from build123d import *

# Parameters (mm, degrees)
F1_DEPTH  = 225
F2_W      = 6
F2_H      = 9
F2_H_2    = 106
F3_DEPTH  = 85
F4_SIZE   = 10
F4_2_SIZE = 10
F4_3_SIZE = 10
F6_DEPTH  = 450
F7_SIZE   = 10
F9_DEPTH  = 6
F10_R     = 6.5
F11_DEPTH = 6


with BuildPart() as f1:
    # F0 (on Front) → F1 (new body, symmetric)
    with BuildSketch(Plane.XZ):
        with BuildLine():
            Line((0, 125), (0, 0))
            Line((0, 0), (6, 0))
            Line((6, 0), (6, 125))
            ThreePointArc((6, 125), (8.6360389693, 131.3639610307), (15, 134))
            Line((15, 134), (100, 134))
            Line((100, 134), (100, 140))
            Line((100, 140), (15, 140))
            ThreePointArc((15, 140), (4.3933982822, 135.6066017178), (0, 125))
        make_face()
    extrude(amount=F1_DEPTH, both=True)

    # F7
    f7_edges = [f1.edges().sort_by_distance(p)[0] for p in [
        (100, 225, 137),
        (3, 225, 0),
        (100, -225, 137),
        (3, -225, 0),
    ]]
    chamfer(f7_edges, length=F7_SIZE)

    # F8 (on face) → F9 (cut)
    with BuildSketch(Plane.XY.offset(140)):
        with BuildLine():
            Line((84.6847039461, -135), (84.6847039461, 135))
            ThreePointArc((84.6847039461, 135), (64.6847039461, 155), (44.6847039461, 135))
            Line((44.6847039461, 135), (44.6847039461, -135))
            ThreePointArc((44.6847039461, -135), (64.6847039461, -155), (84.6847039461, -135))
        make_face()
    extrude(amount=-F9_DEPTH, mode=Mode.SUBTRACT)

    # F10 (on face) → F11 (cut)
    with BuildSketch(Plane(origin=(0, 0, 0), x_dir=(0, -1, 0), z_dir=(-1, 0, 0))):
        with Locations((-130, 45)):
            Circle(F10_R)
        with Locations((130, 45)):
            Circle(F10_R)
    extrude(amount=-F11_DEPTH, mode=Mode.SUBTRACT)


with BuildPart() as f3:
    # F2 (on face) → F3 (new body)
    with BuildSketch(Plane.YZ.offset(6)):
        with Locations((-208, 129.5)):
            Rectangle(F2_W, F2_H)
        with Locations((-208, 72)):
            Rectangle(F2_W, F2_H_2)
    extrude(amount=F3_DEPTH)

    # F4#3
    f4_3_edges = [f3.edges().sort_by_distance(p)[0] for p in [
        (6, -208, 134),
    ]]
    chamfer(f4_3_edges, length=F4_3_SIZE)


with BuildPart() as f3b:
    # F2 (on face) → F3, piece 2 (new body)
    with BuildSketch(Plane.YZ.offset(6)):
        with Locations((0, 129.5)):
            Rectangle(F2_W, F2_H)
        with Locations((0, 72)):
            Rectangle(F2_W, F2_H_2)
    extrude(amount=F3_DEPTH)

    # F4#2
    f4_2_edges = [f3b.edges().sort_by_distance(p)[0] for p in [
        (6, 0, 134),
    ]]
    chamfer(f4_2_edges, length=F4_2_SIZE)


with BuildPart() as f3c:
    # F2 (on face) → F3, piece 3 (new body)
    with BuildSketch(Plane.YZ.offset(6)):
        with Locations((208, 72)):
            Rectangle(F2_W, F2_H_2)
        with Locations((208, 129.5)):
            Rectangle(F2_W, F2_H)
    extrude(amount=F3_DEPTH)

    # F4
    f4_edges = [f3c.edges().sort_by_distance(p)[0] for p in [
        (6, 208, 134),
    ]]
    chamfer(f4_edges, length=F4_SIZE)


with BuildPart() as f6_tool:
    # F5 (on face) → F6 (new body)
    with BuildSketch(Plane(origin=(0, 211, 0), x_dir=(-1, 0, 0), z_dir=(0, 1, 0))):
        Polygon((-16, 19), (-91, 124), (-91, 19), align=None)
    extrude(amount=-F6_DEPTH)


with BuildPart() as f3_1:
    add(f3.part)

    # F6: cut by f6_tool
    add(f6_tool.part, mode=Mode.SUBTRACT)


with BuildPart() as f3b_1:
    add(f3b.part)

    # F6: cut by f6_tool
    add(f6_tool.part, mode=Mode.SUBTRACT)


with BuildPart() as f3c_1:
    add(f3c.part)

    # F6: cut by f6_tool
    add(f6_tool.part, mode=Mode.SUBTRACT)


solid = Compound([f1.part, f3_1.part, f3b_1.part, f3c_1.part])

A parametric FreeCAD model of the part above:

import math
import FreeCAD as App
import Part
import Sketcher
Q = App.Units.Quantity


def edges_at(feature, points):
    """Names of the edges that pass closest to the given points."""
    edges = feature.Shape.Edges
    near = lambda p: min(range(len(edges)), key=lambda i: edges[i].distToShape(Part.Vertex(*p))[0])
    return sorted({f"Edge{near(p) + 1}" for p in points})


def add_polygon(sketch, points):
    """Adds a closed chain of lines whose ends are joined by coincident constraints."""
    first, n = sketch.GeometryCount, len(points)
    for a, b in zip(points, points[1:] + points[:1]):
        sketch.addGeometry(Part.LineSegment(App.Vector(*a, 0), App.Vector(*b, 0)), False)
    for i in range(n):
        sketch.addConstraint(Sketcher.Constraint("Coincident", first + i, 2, first + (i + 1) % n, 1))

doc = App.newDocument("Part")
body = doc.addObject("PartDesign::Body", "Body")

sketch1 = body.newObject("Sketcher::SketchObject", "Sketch")
sketch1.AttachmentSupport = (doc.getObject("XZ_Plane"), [""])
sketch1.MapMode = "FlatFace"
sketch1.addGeometry(Part.LineSegment(App.Vector(0, 125, 0), App.Vector(0, 0, 0)), False)
sketch1.addGeometry(Part.LineSegment(App.Vector(0, 0, 0), App.Vector(6, 0, 0)), False)
sketch1.addGeometry(Part.LineSegment(App.Vector(6, 0, 0), App.Vector(6, 125, 0)), False)
sketch1.addGeometry(Part.ArcOfCircle(Part.Circle(App.Vector(15, 125, 0), App.Vector(0, 0, 1), 9), math.radians(90), math.radians(180)), False)
sketch1.addGeometry(Part.LineSegment(App.Vector(15, 134, 0), App.Vector(100, 134, 0)), False)
sketch1.addGeometry(Part.LineSegment(App.Vector(100, 134, 0), App.Vector(100, 140, 0)), False)
sketch1.addGeometry(Part.LineSegment(App.Vector(100, 140, 0), App.Vector(15, 140, 0)), False)
sketch1.addGeometry(Part.ArcOfCircle(Part.Circle(App.Vector(15, 125, 0), App.Vector(0, 0, 1), 15), math.radians(90), math.radians(180)), False)
sketch1.addConstraint(Sketcher.Constraint("Coincident", 0, 2, 1, 1))
sketch1.addConstraint(Sketcher.Constraint("Coincident", 1, 2, 2, 1))
sketch1.addConstraint(Sketcher.Constraint("Tangent", 2, 2, 3, 2))
sketch1.addConstraint(Sketcher.Constraint("Tangent", 3, 1, 4, 1))
sketch1.addConstraint(Sketcher.Constraint("Coincident", 4, 2, 5, 1))
sketch1.addConstraint(Sketcher.Constraint("Coincident", 5, 2, 6, 1))
sketch1.addConstraint(Sketcher.Constraint("Tangent", 6, 2, 7, 1))
sketch1.addConstraint(Sketcher.Constraint("Tangent", 7, 2, 0, 1))
sketch1.addConstraint(Sketcher.Constraint("Vertical", 0))
sketch1.addConstraint(Sketcher.Constraint("Horizontal", 1))
sketch1.addConstraint(Sketcher.Constraint("Vertical", 2))
sketch1.addConstraint(Sketcher.Constraint("Horizontal", 4))
sketch1.addConstraint(Sketcher.Constraint("Vertical", 5))
sketch1.addConstraint(Sketcher.Constraint("Horizontal", 6))
sketch1.addConstraint(Sketcher.Constraint("Coincident", 0, 2, -1, 1))
sketch1.addConstraint(Sketcher.Constraint("Coincident", 7, 3, 3, 3))
sketch1.addConstraint(Sketcher.Constraint("Radius", 3, Q("9 mm")))
sketch1.addConstraint(Sketcher.Constraint("Radius", 7, Q("15 mm")))
sketch1.addConstraint(Sketcher.Constraint("DistanceX", 4, 1, 4, 2, Q("85 mm")))
sketch1.addConstraint(Sketcher.Constraint("DistanceY", 0, 2, 0, 1, Q("125 mm")))
pad1 = body.newObject("PartDesign::Pad", "Pad")
pad1.Profile = sketch1
pad1.Length = 450
pad1.Midplane = True
doc.recompute()

chamfer = body.newObject("PartDesign::Chamfer", "Chamfer")
chamfer.Base = (pad1, edges_at(pad1, [
    (100, 225, 137),
    (3, 225, 0),
    (100, -225, 137),
    (3, -225, 0),
]))
chamfer.Size = 10

sketch2 = body.newObject("Sketcher::SketchObject", "Sketch001")
sketch2.AttachmentSupport = (doc.getObject("XY_Plane"), [""])
sketch2.MapMode = "FlatFace"
sketch2.AttachmentOffset = App.Placement(App.Vector(0, 0, 140), App.Rotation())
sketch2.addGeometry(Part.LineSegment(App.Vector(85, -135, 0), App.Vector(85, 135, 0)), False)
sketch2.addGeometry(Part.ArcOfCircle(Part.Circle(App.Vector(65, 135, 0), App.Vector(0, 0, 1), 20), math.radians(0), math.radians(180)), False)
sketch2.addGeometry(Part.LineSegment(App.Vector(45, 135, 0), App.Vector(45, -135, 0)), False)
sketch2.addGeometry(Part.ArcOfCircle(Part.Circle(App.Vector(65, -135, 0), App.Vector(0, 0, 1), 20), math.radians(180), math.radians(360)), False)
sketch2.addConstraint(Sketcher.Constraint("Tangent", 0, 2, 1, 1))
sketch2.addConstraint(Sketcher.Constraint("Tangent", 1, 2, 2, 1))
sketch2.addConstraint(Sketcher.Constraint("Tangent", 2, 2, 3, 1))
sketch2.addConstraint(Sketcher.Constraint("Tangent", 3, 2, 0, 1))
sketch2.addConstraint(Sketcher.Constraint("Vertical", 0))
sketch2.addConstraint(Sketcher.Constraint("Vertical", 2))
sketch2.addConstraint(Sketcher.Constraint("Radius", 1, Q("20 mm")))
sketch2.addConstraint(Sketcher.Constraint("DistanceY", 0, 1, 0, 2, Q("270 mm")))
sketch2.addConstraint(Sketcher.Constraint("DistanceY", -1, 1, 1, 3, Q("135 mm")))
sketch2.addConstraint(Sketcher.Constraint("DistanceX", -1, 1, 1, 3, Q("64.684704 mm")))
pocket1 = body.newObject("PartDesign::Pocket", "Pocket")
pocket1.Profile = sketch2
pocket1.Length = 6

sketch3 = body.newObject("Sketcher::SketchObject", "Sketch002")
sketch3.AttachmentSupport = (doc.getObject("YZ_Plane"), [""])
sketch3.MapMode = "FlatFace"
sketch3.addGeometry(Part.Circle(App.Vector(130, 45, 0), App.Vector(0, 0, 1), 6), False)
sketch3.addGeometry(Part.Circle(App.Vector(-130, 45, 0), App.Vector(0, 0, 1), 6), False)
sketch3.addConstraint(Sketcher.Constraint("Equal", 0, 1))
sketch3.addConstraint(Sketcher.Constraint("Symmetric", 0, 3, 1, 3, -2))
sketch3.addConstraint(Sketcher.Constraint("Diameter", 0, Q("13 mm")))
sketch3.addConstraint(Sketcher.Constraint("DistanceX", -1, 1, 0, 3, Q("130 mm")))
sketch3.addConstraint(Sketcher.Constraint("DistanceY", -1, 1, 0, 3, Q("45 mm")))
pocket2 = body.newObject("PartDesign::Pocket", "Pocket001")
pocket2.Profile = sketch3
pocket2.Length = 6
pocket2.Reversed = True
body2 = doc.addObject("PartDesign::Body", "Body001")

sketch4 = body2.newObject("Sketcher::SketchObject", "Sketch003")
sketch4.AttachmentSupport = (doc.getObject("YZ_Plane001"), [""])
sketch4.MapMode = "FlatFace"
sketch4.AttachmentOffset = App.Placement(App.Vector(0, 0, 6), App.Rotation())
add_polygon(sketch4, [(-211, 134), (-211, 19), (-205, 19), (-205, 134)])
sketch4.addConstraint(Sketcher.Constraint("Vertical", 0))
sketch4.addConstraint(Sketcher.Constraint("Horizontal", 1))
sketch4.addConstraint(Sketcher.Constraint("Vertical", 2))
sketch4.addConstraint(Sketcher.Constraint("Horizontal", 3))
sketch4.addConstraint(Sketcher.Constraint("DistanceX", 1, 1, 1, 2, Q("6 mm")))
sketch4.addConstraint(Sketcher.Constraint("DistanceY", 0, 2, 0, 1, Q("115 mm")))
sketch4.addConstraint(Sketcher.Constraint("DistanceX", 0, 2, -1, 1, Q("211 mm")))
sketch4.addConstraint(Sketcher.Constraint("DistanceY", -1, 1, 0, 2, Q("19 mm")))
pad2 = body2.newObject("PartDesign::Pad", "Pad001")
pad2.Profile = sketch4
pad2.Length = 85
doc.recompute()

chamfer2 = body2.newObject("PartDesign::Chamfer", "Chamfer001")
chamfer2.Base = (pad2, edges_at(pad2, [(6, -208, 134)]))
chamfer2.Size = 10
body3 = doc.addObject("PartDesign::Body", "Body002")

sketch5 = body3.newObject("Sketcher::SketchObject", "Sketch004")
sketch5.AttachmentSupport = (doc.getObject("YZ_Plane002"), [""])
sketch5.MapMode = "FlatFace"
sketch5.AttachmentOffset = App.Placement(App.Vector(0, 0, 6), App.Rotation())
add_polygon(sketch5, [(-3, 134), (-3, 19), (3, 19), (3, 134)])
sketch5.addConstraint(Sketcher.Constraint("Vertical", 0))
sketch5.addConstraint(Sketcher.Constraint("Horizontal", 1))
sketch5.addConstraint(Sketcher.Constraint("Vertical", 2))
sketch5.addConstraint(Sketcher.Constraint("Horizontal", 3))
sketch5.addConstraint(Sketcher.Constraint("DistanceX", 1, 1, 1, 2, Q("6 mm")))
sketch5.addConstraint(Sketcher.Constraint("DistanceY", 0, 2, 0, 1, Q("115 mm")))
sketch5.addConstraint(Sketcher.Constraint("DistanceX", 0, 2, -1, 1, Q("3 mm")))
sketch5.addConstraint(Sketcher.Constraint("DistanceY", -1, 1, 0, 2, Q("19 mm")))
pad3 = body3.newObject("PartDesign::Pad", "Pad002")
pad3.Profile = sketch5
pad3.Length = 85
doc.recompute()

chamfer3 = body3.newObject("PartDesign::Chamfer", "Chamfer002")
chamfer3.Base = (pad3, edges_at(pad3, [(6, 0, 134)]))
chamfer3.Size = 10
body4 = doc.addObject("PartDesign::Body", "Body003")

sketch6 = body4.newObject("Sketcher::SketchObject", "Sketch005")
sketch6.AttachmentSupport = (doc.getObject("YZ_Plane003"), [""])
sketch6.MapMode = "FlatFace"
sketch6.AttachmentOffset = App.Placement(App.Vector(0, 0, 6), App.Rotation())
add_polygon(sketch6, [(205, 19), (211, 19), (211, 134), (205, 134)])
sketch6.addConstraint(Sketcher.Constraint("Horizontal", 0))
sketch6.addConstraint(Sketcher.Constraint("Vertical", 1))
sketch6.addConstraint(Sketcher.Constraint("Horizontal", 2))
sketch6.addConstraint(Sketcher.Constraint("Vertical", 3))
sketch6.addConstraint(Sketcher.Constraint("DistanceX", 0, 1, 0, 2, Q("6 mm")))
sketch6.addConstraint(Sketcher.Constraint("DistanceY", 1, 1, 1, 2, Q("115 mm")))
sketch6.addConstraint(Sketcher.Constraint("DistanceX", -1, 1, 0, 2, Q("211 mm")))
sketch6.addConstraint(Sketcher.Constraint("DistanceY", -1, 1, 0, 2, Q("19 mm")))
pad4 = body4.newObject("PartDesign::Pad", "Pad003")
pad4.Profile = sketch6
pad4.Length = 85
doc.recompute()

chamfer4 = body4.newObject("PartDesign::Chamfer", "Chamfer003")
chamfer4.Base = (pad4, edges_at(pad4, [(6, 208, 134)]))
chamfer4.Size = 10
body5 = doc.addObject("PartDesign::Body", "Body004")

sketch7 = body5.newObject("Sketcher::SketchObject", "Sketch006")
sketch7.AttachmentSupport = (doc.getObject("XZ_Plane004"), [""])
sketch7.MapMode = "FlatFace"
sketch7.AttachmentOffset = App.Placement(App.Vector(0, 0, -211), App.Rotation())
add_polygon(sketch7, [(16, 19), (91, 124), (91, 19)])
sketch7.addConstraint(Sketcher.Constraint("Vertical", 1))
sketch7.addConstraint(Sketcher.Constraint("Horizontal", 2))
sketch7.addConstraint(Sketcher.Constraint("DistanceX", 2, 2, 2, 1, Q("75 mm")))
sketch7.addConstraint(Sketcher.Constraint("DistanceY", 1, 2, 1, 1, Q("105 mm")))
sketch7.addConstraint(Sketcher.Constraint("DistanceX", -1, 1, 0, 2, Q("91 mm")))
sketch7.addConstraint(Sketcher.Constraint("DistanceY", -1, 1, 0, 2, Q("124 mm")))
pad5 = body5.newObject("PartDesign::Pad", "Pad004")
pad5.Profile = sketch7
pad5.Length = 450
doc.recompute()

body6 = doc.addObject("PartDesign::Body", "Body005")
body6.BaseFeature = body5
boolean = body2.newObject("PartDesign::Boolean", "Boolean")
boolean.Type = "Cut"
boolean.addObjects([body6])
doc.recompute()

body7 = doc.addObject("PartDesign::Body", "Body006")
body7.BaseFeature = body5
boolean2 = body3.newObject("PartDesign::Boolean", "Boolean001")
boolean2.Type = "Cut"
boolean2.addObjects([body7])
doc.recompute()

boolean3 = body4.newObject("PartDesign::Boolean", "Boolean002")
boolean3.Type = "Cut"
boolean3.addObjects([body5])

doc.recompute()
